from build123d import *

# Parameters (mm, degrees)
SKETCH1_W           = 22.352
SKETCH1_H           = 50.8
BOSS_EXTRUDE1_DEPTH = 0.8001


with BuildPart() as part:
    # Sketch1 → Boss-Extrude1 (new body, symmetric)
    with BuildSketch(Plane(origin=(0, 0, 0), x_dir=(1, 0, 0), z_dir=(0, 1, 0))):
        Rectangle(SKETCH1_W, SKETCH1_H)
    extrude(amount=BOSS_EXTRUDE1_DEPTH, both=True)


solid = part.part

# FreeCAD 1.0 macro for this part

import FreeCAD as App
import Part
import Sketcher

V = App.Vector
Q = App.Units.Quantity

doc = App.newDocument("Part")
body = doc.addObject("PartDesign::Body", "Body")

# Sketch on XZ plane
sketch1 = body.newObject("Sketcher::SketchObject", "Sketch")
sketch1.AttachmentSupport = (doc.getObject("XZ_Plane"), [""])
sketch1.MapMode = "FlatFace"
sketch1.addGeometry(Part.LineSegment(V(-11, -25, 0), V(-11, 25, 0)), False)
sketch1.addGeometry(Part.LineSegment(V(-11, 25, 0), V(11, 25, 0)), False)
sketch1.addGeometry(Part.LineSegment(V(11, 25, 0), V(11, -25, 0)), False)
sketch1.addGeometry(Part.LineSegment(V(11, -25, 0), V(-11, -25, 0)), False)
sketch1.addConstraint(Sketcher.Constraint("Coincident", 0, 2, 1, 1))
sketch1.addConstraint(Sketcher.Constraint("Coincident", 1, 2, 2, 1))
sketch1.addConstraint(Sketcher.Constraint("Coincident", 2, 2, 3, 1))
sketch1.addConstraint(Sketcher.Constraint("Coincident", 3, 2, 0, 1))
sketch1.addConstraint(Sketcher.Constraint("Vertical", 0))
sketch1.addConstraint(Sketcher.Constraint("Horizontal", 1))
sketch1.addConstraint(Sketcher.Constraint("Vertical", 2))
sketch1.addConstraint(Sketcher.Constraint("Horizontal", 3))
sketch1.addConstraint(Sketcher.Constraint("Symmetric", 0, 2, 2, 2, -1, 1))
sketch1.addConstraint(Sketcher.Constraint("DistanceY", 0, 1, 0, 2, Q("2 in")))
sketch1.addConstraint(Sketcher.Constraint("DistanceX", 1, 1, 1, 2, Q("0.88 in")))
pad1 = body.newObject("PartDesign::Pad", "Pad")
pad1.Profile = sketch1
pad1.Length = Q("0.063 in")
pad1.Midplane = True

doc.recompute()
